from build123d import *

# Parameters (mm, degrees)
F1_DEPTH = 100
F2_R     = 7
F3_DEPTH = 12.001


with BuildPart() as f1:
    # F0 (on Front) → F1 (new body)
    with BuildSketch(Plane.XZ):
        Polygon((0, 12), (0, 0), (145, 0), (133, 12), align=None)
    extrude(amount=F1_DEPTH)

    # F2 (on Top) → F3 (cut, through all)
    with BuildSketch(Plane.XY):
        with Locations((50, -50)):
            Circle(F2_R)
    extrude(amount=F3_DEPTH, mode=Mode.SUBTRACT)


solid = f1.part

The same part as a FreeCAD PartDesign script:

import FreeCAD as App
import Part
import Sketcher

V = App.Vector


def add_polygon(sketch, points):
    """Adds a closed chain of lines whose ends are joined by coincident constraints."""
    first, n = sketch.GeometryCount, len(points)
    for a, b in zip(points, points[1:] + points[:1]):
        sketch.addGeometry(Part.LineSegment(App.Vector(*a, 0), App.Vector(*b, 0)), False)
    for i in range(n):
        sketch.addConstraint(Sketcher.Constraint("Coincident", first + i, 2, first + (i + 1) % n, 1))

doc = App.newDocument("Part")
body = doc.addObject("PartDesign::Body", "Body")

sketch1 = body.newObject("Sketcher::SketchObject", "Sketch")
sketch1.AttachmentSupport = (doc.getObject("XZ_Plane"), [""])
sketch1.MapMode = "FlatFace"
add_polygon(sketch1, [(0, 12), (0, 0), (145, 0), (133, 12)])
sketch1.addConstraint([
    Sketcher.Constraint("Vertical", 0),
    Sketcher.Constraint("Horizontal", 1),
    Sketcher.Constraint("Horizontal", 3),
    Sketcher.Constraint("Coincident", 0, 2, -1, 1),
    Sketcher.Constraint("DistanceX", 1, 1, 1, 2, 145.0),
    Sketcher.Constraint("DistanceX", 3, 2, 3, 1, 133.0),
    Sketcher.Constraint("DistanceY", 0, 2, 0, 1, 12.0),
])
pad1 = body.newObject("PartDesign::Pad", "Pad")
pad1.Profile = sketch1
pad1.Length = 100

sketch2 = body.newObject("Sketcher::SketchObject", "Sketch001")
sketch2.AttachmentSupport = (doc.getObject("XY_Plane"), [""])
sketch2.MapMode = "FlatFace"
sketch2.addGeometry(Part.Circle(V(50, -50, 0), V(0, 0, 1), 7), False)
sketch2.addConstraint([
    Sketcher.Constraint("Diameter", 0, 14.0),
    Sketcher.Constraint("DistanceX", -1, 1, 0, 3, 50.0),
    Sketcher.Constraint("DistanceY", 0, 3, -1, 1, 50.0),
])
pocket1 = body.newObject("PartDesign::Pocket", "Pocket")
pocket1.Profile = sketch2
pocket1.Type = "ThroughAll"
pocket1.Reversed = True

doc.recompute()
